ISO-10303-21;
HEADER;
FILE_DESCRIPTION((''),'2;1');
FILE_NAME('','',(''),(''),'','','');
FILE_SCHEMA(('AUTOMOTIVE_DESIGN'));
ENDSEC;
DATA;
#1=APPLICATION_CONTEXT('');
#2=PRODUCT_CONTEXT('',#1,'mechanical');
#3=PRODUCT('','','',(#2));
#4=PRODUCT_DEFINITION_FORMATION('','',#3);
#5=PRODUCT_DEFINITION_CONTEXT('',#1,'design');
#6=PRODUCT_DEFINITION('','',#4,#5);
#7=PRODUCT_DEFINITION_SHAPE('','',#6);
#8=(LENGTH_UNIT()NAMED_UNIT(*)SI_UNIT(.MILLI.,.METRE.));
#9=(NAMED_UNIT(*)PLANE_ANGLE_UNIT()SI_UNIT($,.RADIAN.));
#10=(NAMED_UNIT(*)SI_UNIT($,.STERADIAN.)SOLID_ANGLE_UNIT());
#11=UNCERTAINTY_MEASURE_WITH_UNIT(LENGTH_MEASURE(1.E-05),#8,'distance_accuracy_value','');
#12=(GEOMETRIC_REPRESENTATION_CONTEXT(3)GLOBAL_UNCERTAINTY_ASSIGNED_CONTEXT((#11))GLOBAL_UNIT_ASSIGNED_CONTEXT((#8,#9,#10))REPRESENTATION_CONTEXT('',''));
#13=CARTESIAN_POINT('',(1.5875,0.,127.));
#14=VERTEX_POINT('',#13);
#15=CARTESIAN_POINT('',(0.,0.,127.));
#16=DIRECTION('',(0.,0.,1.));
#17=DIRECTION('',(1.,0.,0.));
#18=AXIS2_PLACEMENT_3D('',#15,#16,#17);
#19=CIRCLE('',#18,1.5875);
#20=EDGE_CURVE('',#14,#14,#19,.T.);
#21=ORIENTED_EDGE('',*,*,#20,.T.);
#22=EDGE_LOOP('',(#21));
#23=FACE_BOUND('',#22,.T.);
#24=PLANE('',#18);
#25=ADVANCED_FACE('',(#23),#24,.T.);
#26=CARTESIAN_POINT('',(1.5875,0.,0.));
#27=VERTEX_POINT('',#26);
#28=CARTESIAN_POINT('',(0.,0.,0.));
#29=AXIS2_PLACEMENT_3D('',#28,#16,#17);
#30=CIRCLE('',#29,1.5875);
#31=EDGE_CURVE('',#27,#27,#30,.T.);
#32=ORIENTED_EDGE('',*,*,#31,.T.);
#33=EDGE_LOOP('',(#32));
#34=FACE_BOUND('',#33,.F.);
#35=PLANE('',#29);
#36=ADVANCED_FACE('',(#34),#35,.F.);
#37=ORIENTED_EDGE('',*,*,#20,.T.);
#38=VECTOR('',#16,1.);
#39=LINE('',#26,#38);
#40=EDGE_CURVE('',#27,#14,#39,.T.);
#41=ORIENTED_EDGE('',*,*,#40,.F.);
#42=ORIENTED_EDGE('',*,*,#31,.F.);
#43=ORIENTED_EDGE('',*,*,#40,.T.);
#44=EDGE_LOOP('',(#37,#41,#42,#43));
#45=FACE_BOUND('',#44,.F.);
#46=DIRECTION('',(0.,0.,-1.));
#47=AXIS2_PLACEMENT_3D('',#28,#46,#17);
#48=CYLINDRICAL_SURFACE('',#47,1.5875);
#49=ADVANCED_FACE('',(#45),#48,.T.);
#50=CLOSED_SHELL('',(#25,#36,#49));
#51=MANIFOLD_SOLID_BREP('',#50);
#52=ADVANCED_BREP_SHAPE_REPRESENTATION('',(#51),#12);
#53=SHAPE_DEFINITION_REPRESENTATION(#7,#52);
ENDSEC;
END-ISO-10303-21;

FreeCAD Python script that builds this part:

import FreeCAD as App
import Part
import Sketcher
from FreeCAD import Vector
Q = App.Units.Quantity

doc = App.newDocument("Part")
params = doc.addObject("Spreadsheet::Sheet", "Params")
for row, (alias, value) in enumerate([
    ("sketch1_diameter", "0.125 in"),
    ("pad1_length", "5 in"),
], start=1):
    params.set(f"A{row}", alias)
    params.set(f"B{row}", "=" + value)
    params.setAlias(f"B{row}", alias)

body = doc.addObject("PartDesign::Body", "Body")

# Sketch on XY plane
sketch1 = body.newObject("Sketcher::SketchObject", "Sketch")
sketch1.AttachmentSupport = (doc.getObject("XY_Plane"), [""])
sketch1.MapMode = "FlatFace"
sketch1.addGeometry(Part.Circle(Vector(0, 0, 0), Vector(0, 0, 1), 1.5875), False)
sketch1.addConstraint([
    Sketcher.Constraint("Coincident", 0, 3, -1, 1),
    Sketcher.Constraint("Diameter", 0, Q("0.125 in")),
])
sketch1.setExpression("Constraints[1]", "Params.sketch1_diameter")
pad1 = body.newObject("PartDesign::Pad", "Pad")
pad1.Profile = sketch1
pad1.setExpression("Length", "Params.pad1_length")

doc.recompute()
